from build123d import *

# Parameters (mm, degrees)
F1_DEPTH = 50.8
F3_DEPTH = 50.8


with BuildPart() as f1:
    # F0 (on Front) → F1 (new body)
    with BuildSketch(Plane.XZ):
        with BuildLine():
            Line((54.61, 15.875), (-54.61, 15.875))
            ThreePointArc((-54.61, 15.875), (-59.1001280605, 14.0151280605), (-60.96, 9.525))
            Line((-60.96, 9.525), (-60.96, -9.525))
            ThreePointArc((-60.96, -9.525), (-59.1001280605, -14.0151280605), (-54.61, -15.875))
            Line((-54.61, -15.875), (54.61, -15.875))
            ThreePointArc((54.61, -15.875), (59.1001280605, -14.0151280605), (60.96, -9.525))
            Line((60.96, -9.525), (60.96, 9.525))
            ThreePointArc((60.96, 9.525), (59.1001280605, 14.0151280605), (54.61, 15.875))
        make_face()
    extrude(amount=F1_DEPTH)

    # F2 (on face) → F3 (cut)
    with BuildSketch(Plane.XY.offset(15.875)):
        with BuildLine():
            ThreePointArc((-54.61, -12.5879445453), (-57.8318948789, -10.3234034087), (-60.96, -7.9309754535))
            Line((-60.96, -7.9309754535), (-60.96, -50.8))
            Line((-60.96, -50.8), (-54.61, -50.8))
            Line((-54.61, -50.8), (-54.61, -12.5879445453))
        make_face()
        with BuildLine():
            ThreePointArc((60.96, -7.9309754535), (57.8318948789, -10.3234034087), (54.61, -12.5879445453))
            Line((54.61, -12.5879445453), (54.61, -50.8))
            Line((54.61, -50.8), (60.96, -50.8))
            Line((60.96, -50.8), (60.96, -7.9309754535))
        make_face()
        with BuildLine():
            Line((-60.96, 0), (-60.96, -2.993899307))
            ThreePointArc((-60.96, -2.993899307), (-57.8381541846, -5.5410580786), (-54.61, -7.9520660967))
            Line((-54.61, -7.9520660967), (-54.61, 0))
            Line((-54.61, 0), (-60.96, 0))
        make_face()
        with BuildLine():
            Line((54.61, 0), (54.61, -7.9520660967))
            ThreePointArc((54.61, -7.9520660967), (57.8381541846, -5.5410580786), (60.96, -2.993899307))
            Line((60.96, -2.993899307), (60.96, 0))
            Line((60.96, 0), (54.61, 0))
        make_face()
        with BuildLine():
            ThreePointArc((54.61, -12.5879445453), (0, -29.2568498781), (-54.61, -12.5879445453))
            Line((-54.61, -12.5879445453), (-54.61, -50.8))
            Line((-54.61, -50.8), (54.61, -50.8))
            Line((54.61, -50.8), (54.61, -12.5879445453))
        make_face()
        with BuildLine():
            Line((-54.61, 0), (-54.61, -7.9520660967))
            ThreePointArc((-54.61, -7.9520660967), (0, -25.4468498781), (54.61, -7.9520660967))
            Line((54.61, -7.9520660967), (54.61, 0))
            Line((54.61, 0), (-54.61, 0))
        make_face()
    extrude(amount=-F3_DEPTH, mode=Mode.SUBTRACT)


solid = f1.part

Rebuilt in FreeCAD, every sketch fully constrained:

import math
import FreeCAD as App
import Part
import Sketcher

V = App.Vector
Q = App.Units.Quantity

doc = App.newDocument("Part")
body = doc.addObject("PartDesign::Body", "Body")

# Sketch on XZ plane
sketch1 = body.newObject("Sketcher::SketchObject", "Sketch")
sketch1.AttachmentSupport = (doc.getObject("XZ_Plane"), [""])
sketch1.MapMode = "FlatFace"
sketch1.addGeometry([
    Part.LineSegment(V(54.61, 15.875, 0), V(-54.61, 15.875, 0)),  # 0
    Part.ArcOfCircle(Part.Circle(V(-54.61, 9.525, 0), V(0, 0, 1), 6.35), math.radians(90), math.radians(180)),  # 1
    Part.LineSegment(V(-60.96, 9.525, 0), V(-60.96, -9.525, 0)),  # 2
    Part.ArcOfCircle(Part.Circle(V(-54.61, -9.525, 0), V(0, 0, 1), 6.35), math.radians(180), math.radians(270)),  # 3
    Part.LineSegment(V(-54.61, -15.875, 0), V(54.61, -15.875, 0)),  # 4
    Part.ArcOfCircle(Part.Circle(V(54.61, -9.525, 0), V(0, 0, 1), 6.35), math.radians(-90), math.radians(0)),  # 5
    Part.LineSegment(V(60.96, -9.525, 0), V(60.96, 9.525, 0)),  # 6
    Part.ArcOfCircle(Part.Circle(V(54.61, 9.525, 0), V(0, 0, 1), 6.35), math.radians(0), math.radians(90)),  # 7
], False)
sketch1.addConstraint([
    Sketcher.Constraint("Tangent", 0, 2, 1, 1),
    Sketcher.Constraint("Tangent", 1, 2, 2, 1),
    Sketcher.Constraint("Tangent", 2, 2, 3, 1),
    Sketcher.Constraint("Tangent", 3, 2, 4, 1),
    Sketcher.Constraint("Tangent", 4, 2, 5, 1),
    Sketcher.Constraint("Tangent", 5, 2, 6, 1),
    Sketcher.Constraint("Tangent", 6, 2, 7, 1),
    Sketcher.Constraint("Tangent", 7, 2, 0, 1),
    Sketcher.Constraint("Horizontal", 0),
    Sketcher.Constraint("Vertical", 2),
    Sketcher.Constraint("Horizontal", 4),
    Sketcher.Constraint("Vertical", 6),
    Sketcher.Constraint("Equal", 1, 3),
    Sketcher.Constraint("Equal", 3, 5),
    Sketcher.Constraint("Equal", 5, 7),
    Sketcher.Constraint("Symmetric", 1, 3, 5, 3, -1, 1),
    Sketcher.Constraint("Radius", 1, Q("0.25 in")),
    Sketcher.Constraint("DistanceX", 0, 2, 0, 1, Q("4.3 in")),
    Sketcher.Constraint("DistanceY", 3, 3, 0, 2, Q("1 in")),
])
pad1 = body.newObject("PartDesign::Pad", "Pad")
pad1.Profile = sketch1
pad1.Length = Q("2 in")

# Sketch on XY plane
sketch2 = body.newObject("Sketcher::SketchObject", "Sketch001")
sketch2.AttachmentSupport = (doc.getObject("XY_Plane"), [""])
sketch2.MapMode = "FlatFace"
sketch2.AttachmentOffset = App.Placement(V(0, 0, 0.625 * 25.4), App.Rotation())
sketch2.addGeometry([
    Part.ArcOfCircle(Part.Circle(V(0, 68.53315, 0), V(0, 0, 1), 97.79), math.radians(-128.563135), math.radians(-123.948089)),  # 0
    Part.LineSegment(V(-60.96, -7.930975, 0), V(-60.96, -50.8, 0)),  # 1
    Part.LineSegment(V(-60.96, -50.8, 0), V(60.96, -50.8, 0)),  # 2
    Part.LineSegment(V(60.96, -50.8, 0), V(60.96, -7.930975, 0)),  # 3
    Part.ArcOfCircle(Part.Circle(V(0, 68.53315, 0), V(0, 0, 1), 97.79), math.radians(-56.051911), math.radians(-51.436865)),  # 4
    Part.ArcOfCircle(Part.Circle(V(0, 68.53315, 0), V(0, 0, 1), 97.79), math.radians(-123.948089), math.radians(-56.051911)),  # 5
    Part.LineSegment(V(-60.96, 0, 0), V(-60.96, -2.993899, 0)),  # 6
    Part.ArcOfCircle(Part.Circle(V(0, 68.53315, 0), V(0, 0, 1), 93.98), math.radians(-130.439793), math.radians(-125.526616)),  # 7
    Part.ArcOfCircle(Part.Circle(V(0, 68.53315, 0), V(0, 0, 1), 93.98), math.radians(-125.526616), math.radians(-54.473384)),  # 8
    Part.ArcOfCircle(Part.Circle(V(0, 68.53315, 0), V(0, 0, 1), 93.98), math.radians(-54.473384), math.radians(-49.560207)),  # 9
    Part.LineSegment(V(60.96, -2.993899, 0), V(60.96, 0, 0)),  # 10
    Part.LineSegment(V(60.96, 0, 0), V(-60.96, 0, 0)),  # 11
], False)
sketch2.addConstraint([
    Sketcher.Constraint("Coincident", 0, 1, 1, 1),
    Sketcher.Constraint("Coincident", 1, 2, 2, 1),
    Sketcher.Constraint("Coincident", 2, 2, 3, 1),
    Sketcher.Constraint("Coincident", 3, 2, 4, 2),
    Sketcher.Constraint("Tangent", 4, 1, 5, 2),
    Sketcher.Constraint("Tangent", 5, 1, 0, 2),
    Sketcher.Constraint("Coincident", 6, 2, 7, 1),
    Sketcher.Constraint("Tangent", 7, 2, 8, 1),
    Sketcher.Constraint("Tangent", 8, 2, 9, 1),
    Sketcher.Constraint("Coincident", 9, 2, 10, 1),
    Sketcher.Constraint("Coincident", 10, 2, 11, 1),
    Sketcher.Constraint("Coincident", 11, 2, 6, 1),
    Sketcher.Constraint("Vertical", 1),
    Sketcher.Constraint("Horizontal", 2),
    Sketcher.Constraint("Vertical", 3),
    Sketcher.Constraint("Vertical", 6),
    Sketcher.Constraint("Vertical", 10),
    Sketcher.Constraint("Horizontal", 11),
    Sketcher.Constraint("Coincident", 4, 3, 0, 3),
    Sketcher.Constraint("Coincident", 7, 3, 0, 3),
    Sketcher.Constraint("Coincident", 9, 3, 0, 3),
    Sketcher.Constraint("Symmetric", 10, 2, 11, 2, -1, 1),
    Sketcher.Constraint("Symmetric", 0, 1, 3, 2, -2),
    Sketcher.Constraint("Horizontal", 4, 1, 5, 1),
    Sketcher.Constraint("Horizontal", 7, 2, 8, 2),
    Sketcher.Constraint("Vertical", 1, 2, 6, 2),
    Sketcher.Constraint("Vertical", 5, 1, 7, 2),
    Sketcher.Constraint("Radius", 7, Q("3.7 in")),
    Sketcher.Constraint("Radius", 0, Q("3.85 in")),
    Sketcher.Constraint("DistanceX", 2, 1, 2, 2, Q("4.8 in")),
    Sketcher.Constraint("DistanceY", 1, 2, -1, 1, Q("2 in")),
    Sketcher.Constraint("DistanceX", -1, 1, 4, 1, Q("2.15 in")),
    Sketcher.Constraint("DistanceY", 6, 2, 6, 1, Q("2.993899 mm")),
])
pocket1 = body.newObject("PartDesign::Pocket", "Pocket")
pocket1.Profile = sketch2
pocket1.Length = Q("2 in")

doc.recompute()
